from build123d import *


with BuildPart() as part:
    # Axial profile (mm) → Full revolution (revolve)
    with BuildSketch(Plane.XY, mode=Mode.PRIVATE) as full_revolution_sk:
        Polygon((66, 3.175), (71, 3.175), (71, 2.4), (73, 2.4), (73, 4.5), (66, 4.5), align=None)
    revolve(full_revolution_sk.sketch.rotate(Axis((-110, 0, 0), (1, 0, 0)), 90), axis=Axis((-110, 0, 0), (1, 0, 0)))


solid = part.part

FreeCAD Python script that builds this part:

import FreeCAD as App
import Part
import Sketcher
from FreeCAD import Vector
Q = App.Units.Quantity


def add_polygon(sketch, points):
    """Adds a closed chain of lines whose ends are joined by coincident constraints."""
    first, n = sketch.GeometryCount, len(points)
    for a, b in zip(points, points[1:] + points[:1]):
        sketch.addGeometry(Part.LineSegment(App.Vector(*a, 0), App.Vector(*b, 0)), False)
    for i in range(n):
        sketch.addConstraint(Sketcher.Constraint("Coincident", first + i, 2, first + (i + 1) % n, 1))

doc = App.newDocument("Part")
params = doc.addObject("Spreadsheet::Sheet", "Params")
for row, (alias, value) in enumerate([
    ("sketch1_width", "5 mm"),
    ("sketch1_width2", "2 mm"),
    ("sketch1_height", "2.1 mm"),
    ("revolution_angle", "360 deg"),
], start=1):
    params.set(f"A{row}", alias)
    params.set(f"B{row}", "=" + value)
    params.setAlias(f"B{row}", alias)

body = doc.addObject("PartDesign::Body", "Body")

# Sketch on XY plane
sketch1 = doc.addObject("Sketcher::SketchObject", "Sketch")
body.addObject(sketch1)
sketch1.AttachmentSupport = (doc.XY_Plane, [""])
sketch1.MapMode = "FlatFace"
add_polygon(sketch1, [(66, 3.2), (71, 3.2), (71, 2.4), (73, 2.4), (73, 4.5), (66, 4.5)])  # lines 0-5
sketch1.addConstraint(Sketcher.Constraint("Horizontal", 0))
sketch1.addConstraint(Sketcher.Constraint("Vertical", 1))
sketch1.addConstraint(Sketcher.Constraint("Horizontal", 2))
sketch1.addConstraint(Sketcher.Constraint("Vertical", 3))
sketch1.addConstraint(Sketcher.Constraint("Horizontal", 4))
sketch1.addConstraint(Sketcher.Constraint("Vertical", 5))
sketch1.addConstraint(Sketcher.Constraint("DistanceX", 0, 1, 0, 2, Q("5 mm")))
sketch1.addConstraint(Sketcher.Constraint("DistanceX", 2, 1, 2, 2, Q("2 mm")))
sketch1.addConstraint(Sketcher.Constraint("DistanceY", 3, 1, 3, 2, Q("2.1 mm")))
sketch1.addConstraint(Sketcher.Constraint("DistanceX", -1, 1, 0, 2, Q("71 mm")))
sketch1.addConstraint(Sketcher.Constraint("DistanceY", -1, 1, 1, 2, Q("2.4 mm")))
sketch1.addConstraint(Sketcher.Constraint("DistanceY", 1, 2, 1, 1, Q("0.775 mm")))
sketch1.setExpression("Constraints[12]", "Params.sketch1_width")
sketch1.setExpression("Constraints[13]", "Params.sketch1_width2")
sketch1.setExpression("Constraints[14]", "Params.sketch1_height")
revolution = doc.addObject("PartDesign::Revolution", "Revolution")
body.addObject(revolution)
revolution.Profile = sketch1
revolution.ReferenceAxis = (sketch1, ["H_Axis"])
revolution.setExpression("Angle", "Params.revolution_angle")

doc.recompute()
